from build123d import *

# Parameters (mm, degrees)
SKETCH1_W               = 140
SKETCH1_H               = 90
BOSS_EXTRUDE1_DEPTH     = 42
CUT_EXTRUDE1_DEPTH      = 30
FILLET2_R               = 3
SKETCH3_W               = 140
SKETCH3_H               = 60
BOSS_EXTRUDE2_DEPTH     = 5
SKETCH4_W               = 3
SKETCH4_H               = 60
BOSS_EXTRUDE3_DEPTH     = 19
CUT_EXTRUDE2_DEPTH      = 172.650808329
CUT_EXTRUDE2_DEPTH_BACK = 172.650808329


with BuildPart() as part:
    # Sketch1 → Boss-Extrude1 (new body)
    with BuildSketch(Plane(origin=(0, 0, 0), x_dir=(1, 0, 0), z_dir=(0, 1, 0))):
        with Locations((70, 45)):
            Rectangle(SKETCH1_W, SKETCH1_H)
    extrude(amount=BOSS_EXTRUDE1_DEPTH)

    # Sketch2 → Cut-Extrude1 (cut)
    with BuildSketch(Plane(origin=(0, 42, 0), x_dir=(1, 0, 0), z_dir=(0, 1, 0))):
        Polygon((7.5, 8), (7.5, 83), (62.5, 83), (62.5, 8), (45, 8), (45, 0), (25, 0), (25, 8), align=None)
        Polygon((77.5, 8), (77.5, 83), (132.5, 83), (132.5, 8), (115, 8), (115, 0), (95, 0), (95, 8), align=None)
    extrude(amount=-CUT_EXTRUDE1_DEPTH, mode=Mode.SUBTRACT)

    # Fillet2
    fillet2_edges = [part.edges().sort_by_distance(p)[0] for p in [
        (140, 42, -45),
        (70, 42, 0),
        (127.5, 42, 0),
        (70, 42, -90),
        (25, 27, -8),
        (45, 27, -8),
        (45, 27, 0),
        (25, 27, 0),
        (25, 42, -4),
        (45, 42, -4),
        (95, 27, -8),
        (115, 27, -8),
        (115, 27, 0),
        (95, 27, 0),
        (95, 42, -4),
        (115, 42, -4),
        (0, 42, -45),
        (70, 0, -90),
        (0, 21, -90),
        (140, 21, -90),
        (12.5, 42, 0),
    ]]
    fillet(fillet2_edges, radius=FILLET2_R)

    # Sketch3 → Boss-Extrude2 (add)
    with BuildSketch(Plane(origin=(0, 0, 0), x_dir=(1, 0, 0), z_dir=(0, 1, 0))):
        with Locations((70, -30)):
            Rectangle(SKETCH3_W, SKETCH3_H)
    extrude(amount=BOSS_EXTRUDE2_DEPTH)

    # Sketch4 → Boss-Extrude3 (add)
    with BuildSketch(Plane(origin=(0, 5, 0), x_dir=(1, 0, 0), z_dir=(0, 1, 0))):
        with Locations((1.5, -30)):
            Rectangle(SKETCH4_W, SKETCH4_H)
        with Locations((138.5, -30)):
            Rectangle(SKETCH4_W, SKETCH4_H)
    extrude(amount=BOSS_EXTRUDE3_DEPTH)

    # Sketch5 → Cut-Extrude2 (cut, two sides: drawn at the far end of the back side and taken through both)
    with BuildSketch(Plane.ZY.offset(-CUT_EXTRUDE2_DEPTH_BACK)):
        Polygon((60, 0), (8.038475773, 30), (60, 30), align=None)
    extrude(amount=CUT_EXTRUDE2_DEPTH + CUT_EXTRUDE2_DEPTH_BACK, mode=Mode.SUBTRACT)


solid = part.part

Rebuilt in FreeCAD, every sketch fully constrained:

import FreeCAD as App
import Part
import Sketcher
from FreeCAD import Vector
Q = App.Units.Quantity


def edges_at(feature, points):
    """Names of the edges that pass closest to the given points."""
    edges = feature.Shape.Edges
    near = lambda p: min(range(len(edges)), key=lambda i: edges[i].distToShape(Part.Vertex(*p))[0])
    return sorted({f"Edge{near(p) + 1}" for p in points})

doc = App.newDocument("Part")
body = doc.addObject("PartDesign::Body", "Body")

sketch1 = doc.addObject("Sketcher::SketchObject", "Sketch")
body.addObject(sketch1)
sketch1.AttachmentSupport = (doc.XZ_Plane, [""])
sketch1.MapMode = "FlatFace"
sketch1.addGeometry([
    Part.LineSegment(Vector(0, -90, 0), Vector(0, 0, 0)),
    Part.LineSegment(Vector(0, 0, 0), Vector(140, 0, 0)),
    Part.LineSegment(Vector(140, 0, 0), Vector(140, -90, 0)),
    Part.LineSegment(Vector(140, -90, 0), Vector(0, -90, 0)),
], False)
sketch1.addConstraint([
    Sketcher.Constraint("Coincident", 0, 2, 1, 1),
    Sketcher.Constraint("Coincident", 1, 2, 2, 1),
    Sketcher.Constraint("Coincident", 2, 2, 3, 1),
    Sketcher.Constraint("Coincident", 3, 2, 0, 1),
    Sketcher.Constraint("Vertical", 0),
    Sketcher.Constraint("Horizontal", 1),
    Sketcher.Constraint("Vertical", 2),
    Sketcher.Constraint("Horizontal", 3),
    Sketcher.Constraint("Coincident", 0, 2, -1, 1),
    Sketcher.Constraint("DistanceX", 1, 1, 1, 2, Q("140 mm")),
    Sketcher.Constraint("DistanceY", 0, 1, 0, 2, Q("90 mm")),
])
pad1 = doc.addObject("PartDesign::Pad", "Pad")
body.addObject(pad1)
pad1.Profile = sketch1
pad1.Length = 42
pad1.Reversed = True

sketch2 = doc.addObject("Sketcher::SketchObject", "Sketch001")
body.addObject(sketch2)
sketch2.AttachmentSupport = (doc.XZ_Plane, [""])
sketch2.MapMode = "FlatFace"
sketch2.AttachmentOffset = App.Placement(Vector(0, 0, -42), App.Rotation())
sketch2.addGeometry([
    Part.LineSegment(Vector(8, -83, 0), Vector(8, -8, 0)),
    Part.LineSegment(Vector(8, -8, 0), Vector(25, -8, 0)),
    Part.LineSegment(Vector(25, -8, 0), Vector(25, 0, 0)),
    Part.LineSegment(Vector(25, 0, 0), Vector(45, 0, 0)),
    Part.LineSegment(Vector(45, 0, 0), Vector(45, -8, 0)),
    Part.LineSegment(Vector(45, -8, 0), Vector(62, -8, 0)),
    Part.LineSegment(Vector(62, -8, 0), Vector(62, -83, 0)),
    Part.LineSegment(Vector(62, -83, 0), Vector(8, -83, 0)),
    Part.LineSegment(Vector(78, -83, 0), Vector(78, -8, 0)),
    Part.LineSegment(Vector(78, -8, 0), Vector(95, -8, 0)),
    Part.LineSegment(Vector(95, -8, 0), Vector(95, 0, 0)),
    Part.LineSegment(Vector(95, 0, 0), Vector(115, 0, 0)),
    Part.LineSegment(Vector(115, 0, 0), Vector(115, -8, 0)),
    Part.LineSegment(Vector(115, -8, 0), Vector(132, -8, 0)),
    Part.LineSegment(Vector(132, -8, 0), Vector(132, -83, 0)),
    Part.LineSegment(Vector(132, -83, 0), Vector(78, -83, 0)),
], False)
sketch2.addConstraint([
    Sketcher.Constraint("Coincident", 0, 2, 1, 1),
    Sketcher.Constraint("Coincident", 1, 2, 2, 1),
    Sketcher.Constraint("Coincident", 2, 2, 3, 1),
    Sketcher.Constraint("Coincident", 3, 2, 4, 1),
    Sketcher.Constraint("Coincident", 4, 2, 5, 1),
    Sketcher.Constraint("Coincident", 5, 2, 6, 1),
    Sketcher.Constraint("Coincident", 6, 2, 7, 1),
    Sketcher.Constraint("Coincident", 7, 2, 0, 1),
    Sketcher.Constraint("Coincident", 8, 2, 9, 1),
    Sketcher.Constraint("Coincident", 9, 2, 10, 1),
    Sketcher.Constraint("Coincident", 10, 2, 11, 1),
    Sketcher.Constraint("Coincident", 11, 2, 12, 1),
    Sketcher.Constraint("Coincident", 12, 2, 13, 1),
    Sketcher.Constraint("Coincident", 13, 2, 14, 1),
    Sketcher.Constraint("Coincident", 14, 2, 15, 1),
    Sketcher.Constraint("Coincident", 15, 2, 8, 1),
    Sketcher.Constraint("Vertical", 0),
    Sketcher.Constraint("Horizontal", 1),
    Sketcher.Constraint("Vertical", 2),
    Sketcher.Constraint("Horizontal", 3),
    Sketcher.Constraint("Vertical", 4),
    Sketcher.Constraint("Horizontal", 5),
    Sketcher.Constraint("Vertical", 6),
    Sketcher.Constraint("Horizontal", 7),
    Sketcher.Constraint("Vertical", 8),
    Sketcher.Constraint("Horizontal", 9),
    Sketcher.Constraint("Vertical", 10),
    Sketcher.Constraint("Horizontal", 11),
    Sketcher.Constraint("Vertical", 12),
    Sketcher.Constraint("Horizontal", 13),
    Sketcher.Constraint("Vertical", 14),
    Sketcher.Constraint("Horizontal", 15),
    Sketcher.Constraint("PointOnObject", 2, 2, -1),
    Sketcher.Constraint("PointOnObject", 10, 2, -1),
    Sketcher.Constraint("Horizontal", 1, 2, 4, 2),
    Sketcher.Constraint("Horizontal", 5, 2, 8, 2),
    Sketcher.Constraint("Horizontal", 9, 2, 12, 2),
    Sketcher.Constraint("Horizontal", 7, 2, 14, 2),
    Sketcher.Constraint("Equal", 1, 5),
    Sketcher.Constraint("Equal", 5, 9),
    Sketcher.Constraint("Equal", 3, 11),
    Sketcher.Constraint("Equal", 9, 13),
    Sketcher.Constraint("DistanceX", 3, 1, 3, 2, Q("20 mm")),
    Sketcher.Constraint("DistanceX", 7, 2, 7, 1, Q("55 mm")),
    Sketcher.Constraint("DistanceY", 0, 1, 0, 2, Q("75 mm")),
    Sketcher.Constraint("DistanceY", 2, 1, 2, 2, Q("8 mm")),
    Sketcher.Constraint("DistanceX", -1, 1, 1, 2, Q("25 mm")),
    Sketcher.Constraint("DistanceX", -1, 1, 9, 2, Q("95 mm")),
])
pocket1 = doc.addObject("PartDesign::Pocket", "Pocket")
body.addObject(pocket1)
pocket1.Profile = sketch2
pocket1.Length = 30
pocket1.Reversed = True
doc.recompute()

fillet = doc.addObject("PartDesign::Fillet", "Fillet")
body.addObject(fillet)
fillet.Base = (pocket1, edges_at(pocket1, [
    (140, 42, -45),
    (70, 42, 0),
    (127.5, 42, 0),
    (70, 42, -90),
    (25, 27, -8),
    (45, 27, -8),
    (45, 27, 0),
    (25, 27, 0),
    (25, 42, -4),
    (45, 42, -4),
    (95, 27, -8),
    (115, 27, -8),
    (115, 27, 0),
    (95, 27, 0),
    (95, 42, -4),
    (115, 42, -4),
    (0, 42, -45),
    (70, 0, -90),
    (0, 21, -90),
    (140, 21, -90),
    (12.5, 42, 0),
]))
fillet.Radius = 3

sketch3 = doc.addObject("Sketcher::SketchObject", "Sketch002")
body.addObject(sketch3)
sketch3.AttachmentSupport = (doc.XZ_Plane, [""])
sketch3.MapMode = "FlatFace"
sketch3.addGeometry([
    Part.LineSegment(Vector(0, 0, 0), Vector(0, 60, 0)),
    Part.LineSegment(Vector(0, 60, 0), Vector(140, 60, 0)),
    Part.LineSegment(Vector(140, 60, 0), Vector(140, 0, 0)),
    Part.LineSegment(Vector(140, 0, 0), Vector(0, 0, 0)),
], False)
sketch3.addConstraint([
    Sketcher.Constraint("Coincident", 0, 2, 1, 1),
    Sketcher.Constraint("Coincident", 1, 2, 2, 1),
    Sketcher.Constraint("Coincident", 2, 2, 3, 1),
    Sketcher.Constraint("Coincident", 3, 2, 0, 1),
    Sketcher.Constraint("Vertical", 0),
    Sketcher.Constraint("Horizontal", 1),
    Sketcher.Constraint("Vertical", 2),
    Sketcher.Constraint("Horizontal", 3),
    Sketcher.Constraint("Coincident", 3, 2, -1, 1),
    Sketcher.Constraint("DistanceX", 1, 1, 1, 2, Q("140 mm")),
    Sketcher.Constraint("DistanceY", 0, 1, 0, 2, Q("60 mm")),
])
pad2 = doc.addObject("PartDesign::Pad", "Pad001")
body.addObject(pad2)
pad2.Profile = sketch3
pad2.Length = 5
pad2.Reversed = True

sketch4 = doc.addObject("Sketcher::SketchObject", "Sketch003")
body.addObject(sketch4)
sketch4.AttachmentSupport = (doc.XZ_Plane, [""])
sketch4.MapMode = "FlatFace"
sketch4.AttachmentOffset = App.Placement(Vector(0, 0, -5), App.Rotation())
sketch4.addGeometry([
    Part.LineSegment(Vector(0, 0, 0), Vector(0, 60, 0)),
    Part.LineSegment(Vector(0, 60, 0), Vector(3, 60, 0)),
    Part.LineSegment(Vector(3, 60, 0), Vector(3, 0, 0)),
    Part.LineSegment(Vector(3, 0, 0), Vector(0, 0, 0)),
    Part.LineSegment(Vector(137, 0, 0), Vector(137, 60, 0)),
    Part.LineSegment(Vector(137, 60, 0), Vector(140, 60, 0)),
    Part.LineSegment(Vector(140, 60, 0), Vector(140, 0, 0)),
    Part.LineSegment(Vector(140, 0, 0), Vector(137, 0, 0)),
], False)
sketch4.addConstraint([
    Sketcher.Constraint("Coincident", 0, 2, 1, 1),
    Sketcher.Constraint("Coincident", 1, 2, 2, 1),
    Sketcher.Constraint("Coincident", 2, 2, 3, 1),
    Sketcher.Constraint("Coincident", 3, 2, 0, 1),
    Sketcher.Constraint("Coincident", 4, 2, 5, 1),
    Sketcher.Constraint("Coincident", 5, 2, 6, 1),
    Sketcher.Constraint("Coincident", 6, 2, 7, 1),
    Sketcher.Constraint("Coincident", 7, 2, 4, 1),
    Sketcher.Constraint("Vertical", 0),
    Sketcher.Constraint("Horizontal", 1),
    Sketcher.Constraint("Vertical", 2),
    Sketcher.Constraint("Horizontal", 3),
    Sketcher.Constraint("Vertical", 4),
    Sketcher.Constraint("Horizontal", 5),
    Sketcher.Constraint("Vertical", 6),
    Sketcher.Constraint("Horizontal", 7),
    Sketcher.Constraint("Coincident", 3, 2, -1, 1),
    Sketcher.Constraint("PointOnObject", 6, 2, -1),
    Sketcher.Constraint("Horizontal", 1, 2, 4, 2),
    Sketcher.Constraint("Equal", 3, 5),
    Sketcher.Constraint("DistanceX", 1, 1, 1, 2, Q("3 mm")),
    Sketcher.Constraint("DistanceY", 0, 1, 0, 2, Q("60 mm")),
    Sketcher.Constraint("DistanceX", -1, 1, 4, 2, Q("137 mm")),
])
pad3 = doc.addObject("PartDesign::Pad", "Pad002")
body.addObject(pad3)
pad3.Profile = sketch4
pad3.Length = 19
pad3.Reversed = True

sketch5 = doc.addObject("Sketcher::SketchObject", "Sketch004")
body.addObject(sketch5)
sketch5.AttachmentSupport = (doc.YZ_Plane, [""])
sketch5.MapMode = "FlatFace"
sketch5.addGeometry([
    Part.LineSegment(Vector(30, 8, 0), Vector(0, 60, 0)),
    Part.LineSegment(Vector(0, 60, 0), Vector(30, 60, 0)),
    Part.LineSegment(Vector(30, 60, 0), Vector(30, 8, 0)),
], False)
sketch5.addConstraint([
    Sketcher.Constraint("Coincident", 0, 2, 1, 1),
    Sketcher.Constraint("Coincident", 1, 2, 2, 1),
    Sketcher.Constraint("Coincident", 2, 2, 0, 1),
    Sketcher.Constraint("Horizontal", 1),
    Sketcher.Constraint("Vertical", 2),
    Sketcher.Constraint("PointOnObject", 0, 2, -2),
    Sketcher.Constraint("DistanceX", 1, 1, 1, 2, Q("30 mm")),
    Sketcher.Constraint("Angle", 0, Q("120 deg")),
    Sketcher.Constraint("DistanceY", -1, 1, 0, 2, Q("60 mm")),
])
pocket2 = doc.addObject("PartDesign::Pocket", "Pocket001")
body.addObject(pocket2)
pocket2.Profile = sketch5
pocket2.Type = "ThroughAll"
pocket2.Midplane = True

doc.recompute()
